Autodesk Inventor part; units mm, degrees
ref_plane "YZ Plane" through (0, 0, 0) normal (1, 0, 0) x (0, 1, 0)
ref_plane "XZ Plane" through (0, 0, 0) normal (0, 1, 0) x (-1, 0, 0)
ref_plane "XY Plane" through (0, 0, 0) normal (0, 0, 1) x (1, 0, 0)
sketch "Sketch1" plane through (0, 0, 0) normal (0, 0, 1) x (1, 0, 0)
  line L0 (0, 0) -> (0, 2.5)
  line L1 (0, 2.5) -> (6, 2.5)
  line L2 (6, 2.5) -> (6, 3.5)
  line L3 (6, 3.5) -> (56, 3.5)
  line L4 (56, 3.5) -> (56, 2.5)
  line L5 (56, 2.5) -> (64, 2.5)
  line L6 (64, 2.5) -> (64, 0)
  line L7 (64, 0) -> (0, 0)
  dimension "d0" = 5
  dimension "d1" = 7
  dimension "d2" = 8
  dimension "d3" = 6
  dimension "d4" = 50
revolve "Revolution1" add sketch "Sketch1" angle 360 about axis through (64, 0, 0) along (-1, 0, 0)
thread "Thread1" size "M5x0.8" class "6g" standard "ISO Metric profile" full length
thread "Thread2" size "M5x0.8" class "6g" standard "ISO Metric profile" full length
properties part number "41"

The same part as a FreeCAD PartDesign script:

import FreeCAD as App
import Part
import Sketcher
from FreeCAD import Vector
Q = App.Units.Quantity


def add_polygon(sketch, points):
    """Adds a closed chain of lines whose ends are joined by coincident constraints."""
    first, n = sketch.GeometryCount, len(points)
    for a, b in zip(points, points[1:] + points[:1]):
        sketch.addGeometry(Part.LineSegment(App.Vector(*a, 0), App.Vector(*b, 0)), False)
    for i in range(n):
        sketch.addConstraint(Sketcher.Constraint("Coincident", first + i, 2, first + (i + 1) % n, 1))

doc = App.newDocument("Part")
params = doc.addObject("Spreadsheet::Sheet", "Params")
for row, (alias, value) in enumerate([
    ("sketch1_width", "8 mm"),
    ("sketch1_width2", "50 mm"),
    ("sketch1_width3", "6 mm"),
    ("sketch1_height", "1 mm"),
    ("sketch1_height2", "2.5 mm"),
    ("revolution_angle", "360 deg"),
], start=1):
    params.set(f"A{row}", alias)
    params.set(f"B{row}", "=" + value)
    params.setAlias(f"B{row}", alias)

body = doc.addObject("PartDesign::Body", "Body")

# Sketch on XY plane
sketch1 = body.newObject("Sketcher::SketchObject", "Sketch")
sketch1.AttachmentSupport = (doc.getObject("XY_Plane"), [""])
sketch1.MapMode = "FlatFace"
add_polygon(sketch1, [(0, 2.5), (0, 0), (64, 0), (64, 2.5), (56, 2.5), (56, 3.5), (6, 3.5), (6, 2.5)])  # lines 0-7
sketch1.addConstraint(Sketcher.Constraint("Vertical", 0))
sketch1.addConstraint(Sketcher.Constraint("Horizontal", 1))
sketch1.addConstraint(Sketcher.Constraint("Vertical", 2))
sketch1.addConstraint(Sketcher.Constraint("Horizontal", 3))
sketch1.addConstraint(Sketcher.Constraint("Vertical", 4))
sketch1.addConstraint(Sketcher.Constraint("Horizontal", 5))
sketch1.addConstraint(Sketcher.Constraint("Vertical", 6))
sketch1.addConstraint(Sketcher.Constraint("Horizontal", 7))
sketch1.addConstraint(Sketcher.Constraint("Coincident", 0, 2, -1, 1))
sketch1.addConstraint(Sketcher.Constraint("Horizontal", 3, 2, 6, 2))
sketch1.addConstraint(Sketcher.Constraint("DistanceX", 3, 2, 3, 1, Q("8 mm")))
sketch1.addConstraint(Sketcher.Constraint("DistanceX", 5, 2, 5, 1, Q("50 mm")))
sketch1.addConstraint(Sketcher.Constraint("DistanceX", 7, 2, 7, 1, Q("6 mm")))
sketch1.addConstraint(Sketcher.Constraint("DistanceY", 4, 1, 4, 2, Q("1 mm")))
sketch1.addConstraint(Sketcher.Constraint("DistanceY", 0, 2, 0, 1, Q("2.5 mm")))
sketch1.setExpression("Constraints[18]", "Params.sketch1_width")
sketch1.setExpression("Constraints[19]", "Params.sketch1_width2")
sketch1.setExpression("Constraints[20]", "Params.sketch1_width3")
sketch1.setExpression("Constraints[21]", "Params.sketch1_height")
sketch1.setExpression("Constraints[22]", "Params.sketch1_height2")
revolution = body.newObject("PartDesign::Revolution", "Revolution")
revolution.Profile = sketch1
revolution.ReferenceAxis = (sketch1, ["H_Axis"])
revolution.setExpression("Angle", "Params.revolution_angle")

doc.recompute()
